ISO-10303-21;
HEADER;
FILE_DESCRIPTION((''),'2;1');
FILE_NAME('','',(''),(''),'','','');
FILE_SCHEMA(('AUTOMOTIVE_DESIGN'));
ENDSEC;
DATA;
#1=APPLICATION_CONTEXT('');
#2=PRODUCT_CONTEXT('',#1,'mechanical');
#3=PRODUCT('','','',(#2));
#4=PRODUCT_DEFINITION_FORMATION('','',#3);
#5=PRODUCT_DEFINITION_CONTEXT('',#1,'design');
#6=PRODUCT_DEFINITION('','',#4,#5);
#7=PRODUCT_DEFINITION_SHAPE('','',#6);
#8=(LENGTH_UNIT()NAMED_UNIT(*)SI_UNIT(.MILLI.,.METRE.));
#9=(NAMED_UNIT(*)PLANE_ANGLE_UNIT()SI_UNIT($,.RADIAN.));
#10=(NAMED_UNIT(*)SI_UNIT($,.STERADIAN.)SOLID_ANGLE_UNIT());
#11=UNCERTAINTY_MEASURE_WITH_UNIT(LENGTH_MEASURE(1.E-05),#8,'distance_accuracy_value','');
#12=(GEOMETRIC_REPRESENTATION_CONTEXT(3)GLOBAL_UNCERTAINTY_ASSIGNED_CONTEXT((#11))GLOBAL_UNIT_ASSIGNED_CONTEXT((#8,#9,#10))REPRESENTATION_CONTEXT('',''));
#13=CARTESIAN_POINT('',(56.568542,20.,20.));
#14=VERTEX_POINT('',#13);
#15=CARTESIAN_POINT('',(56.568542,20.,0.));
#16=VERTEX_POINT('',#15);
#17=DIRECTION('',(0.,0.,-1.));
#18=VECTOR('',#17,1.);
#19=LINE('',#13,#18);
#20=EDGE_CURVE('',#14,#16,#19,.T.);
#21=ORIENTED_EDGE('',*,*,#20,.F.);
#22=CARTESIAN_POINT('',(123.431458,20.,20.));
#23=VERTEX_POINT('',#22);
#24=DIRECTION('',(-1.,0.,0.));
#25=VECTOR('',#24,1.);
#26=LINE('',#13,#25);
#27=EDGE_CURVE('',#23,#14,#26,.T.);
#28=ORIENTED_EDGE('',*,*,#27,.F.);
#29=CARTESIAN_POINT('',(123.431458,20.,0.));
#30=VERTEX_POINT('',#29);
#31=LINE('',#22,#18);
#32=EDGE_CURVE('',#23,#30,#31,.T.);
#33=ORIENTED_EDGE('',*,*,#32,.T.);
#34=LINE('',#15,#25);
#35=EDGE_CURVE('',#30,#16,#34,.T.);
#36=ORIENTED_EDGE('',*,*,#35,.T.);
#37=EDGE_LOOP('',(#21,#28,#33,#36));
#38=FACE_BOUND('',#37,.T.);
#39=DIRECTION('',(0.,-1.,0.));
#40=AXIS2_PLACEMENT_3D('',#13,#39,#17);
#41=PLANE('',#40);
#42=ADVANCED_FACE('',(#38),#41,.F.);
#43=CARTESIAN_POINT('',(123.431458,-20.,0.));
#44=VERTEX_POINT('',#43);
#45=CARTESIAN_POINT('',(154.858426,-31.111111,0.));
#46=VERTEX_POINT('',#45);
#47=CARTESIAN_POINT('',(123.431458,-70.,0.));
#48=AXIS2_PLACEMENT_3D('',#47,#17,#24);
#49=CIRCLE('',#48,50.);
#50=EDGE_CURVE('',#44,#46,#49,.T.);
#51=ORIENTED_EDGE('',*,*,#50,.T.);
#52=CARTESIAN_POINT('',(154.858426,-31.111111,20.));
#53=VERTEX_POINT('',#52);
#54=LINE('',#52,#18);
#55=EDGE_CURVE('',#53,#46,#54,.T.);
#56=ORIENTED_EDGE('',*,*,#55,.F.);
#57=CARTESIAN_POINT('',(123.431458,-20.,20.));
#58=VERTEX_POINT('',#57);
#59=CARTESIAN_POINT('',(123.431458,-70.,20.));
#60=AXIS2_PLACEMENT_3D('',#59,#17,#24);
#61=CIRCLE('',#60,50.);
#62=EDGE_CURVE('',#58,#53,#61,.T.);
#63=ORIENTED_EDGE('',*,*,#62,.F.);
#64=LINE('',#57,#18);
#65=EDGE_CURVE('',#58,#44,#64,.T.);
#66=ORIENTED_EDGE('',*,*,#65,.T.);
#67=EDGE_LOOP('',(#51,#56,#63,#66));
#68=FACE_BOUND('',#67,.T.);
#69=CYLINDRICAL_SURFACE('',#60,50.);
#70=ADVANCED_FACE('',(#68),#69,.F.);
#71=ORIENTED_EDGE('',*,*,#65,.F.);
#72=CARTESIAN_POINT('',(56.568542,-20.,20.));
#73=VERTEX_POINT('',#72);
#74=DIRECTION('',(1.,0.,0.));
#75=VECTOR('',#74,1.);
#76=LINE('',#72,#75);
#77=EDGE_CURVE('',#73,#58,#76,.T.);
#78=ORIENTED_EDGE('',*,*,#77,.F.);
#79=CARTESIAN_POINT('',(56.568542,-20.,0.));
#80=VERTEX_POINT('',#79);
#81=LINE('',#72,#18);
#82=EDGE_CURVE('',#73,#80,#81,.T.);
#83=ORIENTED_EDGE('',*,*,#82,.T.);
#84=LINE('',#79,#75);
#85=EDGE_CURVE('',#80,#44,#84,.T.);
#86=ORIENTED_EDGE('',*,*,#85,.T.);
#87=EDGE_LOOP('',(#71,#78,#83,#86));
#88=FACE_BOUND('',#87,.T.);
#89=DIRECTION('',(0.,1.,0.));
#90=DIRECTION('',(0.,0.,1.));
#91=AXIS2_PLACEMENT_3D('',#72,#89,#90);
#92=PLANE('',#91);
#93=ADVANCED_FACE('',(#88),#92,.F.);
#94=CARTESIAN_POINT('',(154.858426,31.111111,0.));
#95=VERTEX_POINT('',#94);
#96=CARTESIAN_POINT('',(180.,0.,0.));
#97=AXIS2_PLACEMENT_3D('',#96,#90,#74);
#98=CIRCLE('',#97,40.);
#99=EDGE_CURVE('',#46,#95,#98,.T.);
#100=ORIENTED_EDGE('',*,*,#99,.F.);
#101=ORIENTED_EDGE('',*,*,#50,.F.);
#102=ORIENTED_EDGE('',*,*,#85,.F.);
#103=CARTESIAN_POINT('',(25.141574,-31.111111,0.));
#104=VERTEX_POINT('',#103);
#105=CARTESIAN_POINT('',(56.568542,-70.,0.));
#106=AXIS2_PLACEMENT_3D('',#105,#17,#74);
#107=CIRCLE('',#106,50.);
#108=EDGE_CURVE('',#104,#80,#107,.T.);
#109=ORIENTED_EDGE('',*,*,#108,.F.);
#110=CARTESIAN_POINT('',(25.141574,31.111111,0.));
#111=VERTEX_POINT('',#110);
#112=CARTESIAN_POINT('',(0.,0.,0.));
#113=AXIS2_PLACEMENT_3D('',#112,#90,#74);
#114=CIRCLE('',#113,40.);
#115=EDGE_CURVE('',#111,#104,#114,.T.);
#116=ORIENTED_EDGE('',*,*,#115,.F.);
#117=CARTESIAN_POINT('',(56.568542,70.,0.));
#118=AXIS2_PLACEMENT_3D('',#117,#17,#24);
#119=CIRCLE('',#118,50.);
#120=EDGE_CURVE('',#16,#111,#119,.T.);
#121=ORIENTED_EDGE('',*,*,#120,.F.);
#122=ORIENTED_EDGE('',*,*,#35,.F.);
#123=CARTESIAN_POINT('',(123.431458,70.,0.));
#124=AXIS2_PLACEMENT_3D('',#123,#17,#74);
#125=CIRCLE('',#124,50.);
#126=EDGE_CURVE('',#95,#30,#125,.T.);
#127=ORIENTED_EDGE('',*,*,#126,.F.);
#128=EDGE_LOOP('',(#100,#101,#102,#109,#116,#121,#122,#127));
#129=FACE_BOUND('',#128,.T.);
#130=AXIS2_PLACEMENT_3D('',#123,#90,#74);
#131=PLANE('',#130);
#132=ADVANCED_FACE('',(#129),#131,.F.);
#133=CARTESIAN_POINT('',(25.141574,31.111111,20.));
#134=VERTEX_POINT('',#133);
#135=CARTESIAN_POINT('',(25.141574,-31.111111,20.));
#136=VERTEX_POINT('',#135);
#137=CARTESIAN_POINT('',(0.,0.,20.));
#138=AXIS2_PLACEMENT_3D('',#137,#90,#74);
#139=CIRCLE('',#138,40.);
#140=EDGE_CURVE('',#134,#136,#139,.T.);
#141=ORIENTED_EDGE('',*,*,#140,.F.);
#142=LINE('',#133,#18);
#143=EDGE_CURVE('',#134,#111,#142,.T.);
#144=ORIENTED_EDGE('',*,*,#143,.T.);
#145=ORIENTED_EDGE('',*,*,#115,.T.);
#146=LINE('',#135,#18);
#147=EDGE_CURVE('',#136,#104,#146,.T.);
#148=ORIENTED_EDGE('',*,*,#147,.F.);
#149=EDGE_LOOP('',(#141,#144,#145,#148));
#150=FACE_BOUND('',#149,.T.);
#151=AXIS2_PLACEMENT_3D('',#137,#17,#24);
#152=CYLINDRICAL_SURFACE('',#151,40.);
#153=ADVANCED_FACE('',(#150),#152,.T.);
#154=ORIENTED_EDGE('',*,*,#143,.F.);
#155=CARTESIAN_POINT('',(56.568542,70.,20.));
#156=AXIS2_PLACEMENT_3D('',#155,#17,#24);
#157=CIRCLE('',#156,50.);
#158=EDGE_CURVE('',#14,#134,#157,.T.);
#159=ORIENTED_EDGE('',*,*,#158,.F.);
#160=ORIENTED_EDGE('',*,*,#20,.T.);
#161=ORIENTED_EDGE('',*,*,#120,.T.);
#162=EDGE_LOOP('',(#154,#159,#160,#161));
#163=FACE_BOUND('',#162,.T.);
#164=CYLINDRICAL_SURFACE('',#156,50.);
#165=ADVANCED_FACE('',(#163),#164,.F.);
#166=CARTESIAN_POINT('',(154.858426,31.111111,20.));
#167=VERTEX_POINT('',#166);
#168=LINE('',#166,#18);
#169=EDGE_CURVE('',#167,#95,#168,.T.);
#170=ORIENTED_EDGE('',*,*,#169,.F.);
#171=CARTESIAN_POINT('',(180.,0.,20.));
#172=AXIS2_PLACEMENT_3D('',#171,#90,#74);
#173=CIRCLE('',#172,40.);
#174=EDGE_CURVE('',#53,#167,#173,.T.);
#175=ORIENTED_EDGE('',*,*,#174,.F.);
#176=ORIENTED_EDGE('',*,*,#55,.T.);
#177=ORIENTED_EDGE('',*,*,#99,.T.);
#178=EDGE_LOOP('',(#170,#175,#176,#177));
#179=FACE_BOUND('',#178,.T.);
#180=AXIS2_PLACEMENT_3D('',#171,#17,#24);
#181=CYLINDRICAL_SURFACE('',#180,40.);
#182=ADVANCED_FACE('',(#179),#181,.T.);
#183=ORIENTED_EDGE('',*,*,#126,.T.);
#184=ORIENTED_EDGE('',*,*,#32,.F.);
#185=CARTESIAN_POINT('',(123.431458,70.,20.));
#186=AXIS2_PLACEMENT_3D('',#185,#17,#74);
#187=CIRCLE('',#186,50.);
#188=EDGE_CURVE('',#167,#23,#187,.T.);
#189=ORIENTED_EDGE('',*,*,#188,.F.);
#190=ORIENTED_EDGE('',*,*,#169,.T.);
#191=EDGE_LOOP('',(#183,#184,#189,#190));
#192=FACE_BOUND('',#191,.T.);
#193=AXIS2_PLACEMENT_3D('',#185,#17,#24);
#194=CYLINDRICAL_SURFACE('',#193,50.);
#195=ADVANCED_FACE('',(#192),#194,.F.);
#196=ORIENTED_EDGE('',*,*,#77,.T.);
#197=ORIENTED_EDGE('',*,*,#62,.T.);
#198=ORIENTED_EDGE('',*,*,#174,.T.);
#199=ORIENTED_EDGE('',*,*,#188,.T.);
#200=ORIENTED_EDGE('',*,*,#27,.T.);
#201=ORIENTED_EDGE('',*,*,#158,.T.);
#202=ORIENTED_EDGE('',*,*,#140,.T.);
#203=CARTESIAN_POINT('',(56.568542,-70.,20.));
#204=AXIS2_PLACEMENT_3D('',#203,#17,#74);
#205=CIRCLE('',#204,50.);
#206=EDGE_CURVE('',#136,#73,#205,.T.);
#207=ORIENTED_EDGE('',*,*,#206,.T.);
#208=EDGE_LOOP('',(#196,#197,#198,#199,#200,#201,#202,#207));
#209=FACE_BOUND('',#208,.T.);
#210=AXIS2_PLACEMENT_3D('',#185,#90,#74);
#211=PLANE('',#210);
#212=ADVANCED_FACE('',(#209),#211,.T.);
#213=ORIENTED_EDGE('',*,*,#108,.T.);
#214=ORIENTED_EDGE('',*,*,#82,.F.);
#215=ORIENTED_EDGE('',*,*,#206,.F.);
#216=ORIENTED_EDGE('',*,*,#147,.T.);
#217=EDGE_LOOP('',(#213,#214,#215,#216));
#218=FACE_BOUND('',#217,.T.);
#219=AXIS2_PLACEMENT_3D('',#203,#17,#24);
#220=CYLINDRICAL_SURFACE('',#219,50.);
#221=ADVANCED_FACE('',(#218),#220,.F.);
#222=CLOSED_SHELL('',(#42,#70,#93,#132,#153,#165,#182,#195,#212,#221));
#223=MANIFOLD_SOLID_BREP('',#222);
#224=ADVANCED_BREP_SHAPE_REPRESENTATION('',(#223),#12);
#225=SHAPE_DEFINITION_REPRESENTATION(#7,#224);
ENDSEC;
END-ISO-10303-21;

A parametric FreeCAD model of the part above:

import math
import FreeCAD as App
import Part
import Sketcher

V = App.Vector

doc = App.newDocument("Part")
body = doc.addObject("PartDesign::Body", "Body")

# Sketch on XY plane
sketch1 = body.newObject("Sketcher::SketchObject", "Sketch")
sketch1.AttachmentSupport = (doc.getObject("XY_Plane"), [""])
sketch1.MapMode = "FlatFace"
sketch1.addGeometry(Part.LineSegment(V(123, 20, 0), V(57, 20, 0)), False)
sketch1.addGeometry(Part.ArcOfCircle(Part.Circle(V(57, 70, 0), V(0, 0, 1), 50), math.radians(-129), math.radians(-90)), False)
sketch1.addGeometry(Part.ArcOfCircle(Part.Circle(V(0, 0, 0), V(0, 0, 1), 40), math.radians(51), math.radians(309)), False)
sketch1.addGeometry(Part.ArcOfCircle(Part.Circle(V(57, -70, 0), V(0, 0, 1), 50), math.radians(90), math.radians(129)), False)
sketch1.addGeometry(Part.LineSegment(V(57, -20, 0), V(123, -20, 0)), False)
sketch1.addGeometry(Part.ArcOfCircle(Part.Circle(V(123, -70, 0), V(0, 0, 1), 50), math.radians(51), math.radians(90)), False)
sketch1.addGeometry(Part.ArcOfCircle(Part.Circle(V(180, 0, 0), V(0, 0, 1), 40), math.radians(-129), math.radians(129)), False)
sketch1.addGeometry(Part.ArcOfCircle(Part.Circle(V(123, 70, 0), V(0, 0, 1), 50), math.radians(-90), math.radians(-51)), False)
sketch1.addConstraint(Sketcher.Constraint("Tangent", 0, 2, 1, 2))
sketch1.addConstraint(Sketcher.Constraint("Tangent", 1, 1, 2, 1))
sketch1.addConstraint(Sketcher.Constraint("Tangent", 2, 2, 3, 2))
sketch1.addConstraint(Sketcher.Constraint("Tangent", 3, 1, 4, 1))
sketch1.addConstraint(Sketcher.Constraint("Tangent", 4, 2, 5, 2))
sketch1.addConstraint(Sketcher.Constraint("Tangent", 5, 1, 6, 1))
sketch1.addConstraint(Sketcher.Constraint("Tangent", 6, 2, 7, 2))
sketch1.addConstraint(Sketcher.Constraint("Tangent", 7, 1, 0, 1))
sketch1.addConstraint(Sketcher.Constraint("Horizontal", 0))
sketch1.addConstraint(Sketcher.Constraint("Horizontal", 4))
sketch1.addConstraint(Sketcher.Constraint("Coincident", 2, 3, -1, 1))
sketch1.addConstraint(Sketcher.Constraint("Equal", 1, 3))
sketch1.addConstraint(Sketcher.Constraint("Equal", 3, 5))
sketch1.addConstraint(Sketcher.Constraint("Equal", 2, 6))
sketch1.addConstraint(Sketcher.Constraint("Equal", 5, 7))
sketch1.addConstraint(Sketcher.Constraint("Symmetric", 5, 3, 7, 3, -1))
sketch1.addConstraint(Sketcher.Constraint("Radius", 1, 50.0))
sketch1.addConstraint(Sketcher.Constraint("Radius", 2, 40.0))
sketch1.addConstraint(Sketcher.Constraint("DistanceY", -1, 1, 1, 3, 70.0))
sketch1.addConstraint(Sketcher.Constraint("DistanceX", -1, 1, 6, 3, 180.0))
pad1 = body.newObject("PartDesign::Pad", "Pad")
pad1.Profile = sketch1
pad1.Length = 20

doc.recompute()
